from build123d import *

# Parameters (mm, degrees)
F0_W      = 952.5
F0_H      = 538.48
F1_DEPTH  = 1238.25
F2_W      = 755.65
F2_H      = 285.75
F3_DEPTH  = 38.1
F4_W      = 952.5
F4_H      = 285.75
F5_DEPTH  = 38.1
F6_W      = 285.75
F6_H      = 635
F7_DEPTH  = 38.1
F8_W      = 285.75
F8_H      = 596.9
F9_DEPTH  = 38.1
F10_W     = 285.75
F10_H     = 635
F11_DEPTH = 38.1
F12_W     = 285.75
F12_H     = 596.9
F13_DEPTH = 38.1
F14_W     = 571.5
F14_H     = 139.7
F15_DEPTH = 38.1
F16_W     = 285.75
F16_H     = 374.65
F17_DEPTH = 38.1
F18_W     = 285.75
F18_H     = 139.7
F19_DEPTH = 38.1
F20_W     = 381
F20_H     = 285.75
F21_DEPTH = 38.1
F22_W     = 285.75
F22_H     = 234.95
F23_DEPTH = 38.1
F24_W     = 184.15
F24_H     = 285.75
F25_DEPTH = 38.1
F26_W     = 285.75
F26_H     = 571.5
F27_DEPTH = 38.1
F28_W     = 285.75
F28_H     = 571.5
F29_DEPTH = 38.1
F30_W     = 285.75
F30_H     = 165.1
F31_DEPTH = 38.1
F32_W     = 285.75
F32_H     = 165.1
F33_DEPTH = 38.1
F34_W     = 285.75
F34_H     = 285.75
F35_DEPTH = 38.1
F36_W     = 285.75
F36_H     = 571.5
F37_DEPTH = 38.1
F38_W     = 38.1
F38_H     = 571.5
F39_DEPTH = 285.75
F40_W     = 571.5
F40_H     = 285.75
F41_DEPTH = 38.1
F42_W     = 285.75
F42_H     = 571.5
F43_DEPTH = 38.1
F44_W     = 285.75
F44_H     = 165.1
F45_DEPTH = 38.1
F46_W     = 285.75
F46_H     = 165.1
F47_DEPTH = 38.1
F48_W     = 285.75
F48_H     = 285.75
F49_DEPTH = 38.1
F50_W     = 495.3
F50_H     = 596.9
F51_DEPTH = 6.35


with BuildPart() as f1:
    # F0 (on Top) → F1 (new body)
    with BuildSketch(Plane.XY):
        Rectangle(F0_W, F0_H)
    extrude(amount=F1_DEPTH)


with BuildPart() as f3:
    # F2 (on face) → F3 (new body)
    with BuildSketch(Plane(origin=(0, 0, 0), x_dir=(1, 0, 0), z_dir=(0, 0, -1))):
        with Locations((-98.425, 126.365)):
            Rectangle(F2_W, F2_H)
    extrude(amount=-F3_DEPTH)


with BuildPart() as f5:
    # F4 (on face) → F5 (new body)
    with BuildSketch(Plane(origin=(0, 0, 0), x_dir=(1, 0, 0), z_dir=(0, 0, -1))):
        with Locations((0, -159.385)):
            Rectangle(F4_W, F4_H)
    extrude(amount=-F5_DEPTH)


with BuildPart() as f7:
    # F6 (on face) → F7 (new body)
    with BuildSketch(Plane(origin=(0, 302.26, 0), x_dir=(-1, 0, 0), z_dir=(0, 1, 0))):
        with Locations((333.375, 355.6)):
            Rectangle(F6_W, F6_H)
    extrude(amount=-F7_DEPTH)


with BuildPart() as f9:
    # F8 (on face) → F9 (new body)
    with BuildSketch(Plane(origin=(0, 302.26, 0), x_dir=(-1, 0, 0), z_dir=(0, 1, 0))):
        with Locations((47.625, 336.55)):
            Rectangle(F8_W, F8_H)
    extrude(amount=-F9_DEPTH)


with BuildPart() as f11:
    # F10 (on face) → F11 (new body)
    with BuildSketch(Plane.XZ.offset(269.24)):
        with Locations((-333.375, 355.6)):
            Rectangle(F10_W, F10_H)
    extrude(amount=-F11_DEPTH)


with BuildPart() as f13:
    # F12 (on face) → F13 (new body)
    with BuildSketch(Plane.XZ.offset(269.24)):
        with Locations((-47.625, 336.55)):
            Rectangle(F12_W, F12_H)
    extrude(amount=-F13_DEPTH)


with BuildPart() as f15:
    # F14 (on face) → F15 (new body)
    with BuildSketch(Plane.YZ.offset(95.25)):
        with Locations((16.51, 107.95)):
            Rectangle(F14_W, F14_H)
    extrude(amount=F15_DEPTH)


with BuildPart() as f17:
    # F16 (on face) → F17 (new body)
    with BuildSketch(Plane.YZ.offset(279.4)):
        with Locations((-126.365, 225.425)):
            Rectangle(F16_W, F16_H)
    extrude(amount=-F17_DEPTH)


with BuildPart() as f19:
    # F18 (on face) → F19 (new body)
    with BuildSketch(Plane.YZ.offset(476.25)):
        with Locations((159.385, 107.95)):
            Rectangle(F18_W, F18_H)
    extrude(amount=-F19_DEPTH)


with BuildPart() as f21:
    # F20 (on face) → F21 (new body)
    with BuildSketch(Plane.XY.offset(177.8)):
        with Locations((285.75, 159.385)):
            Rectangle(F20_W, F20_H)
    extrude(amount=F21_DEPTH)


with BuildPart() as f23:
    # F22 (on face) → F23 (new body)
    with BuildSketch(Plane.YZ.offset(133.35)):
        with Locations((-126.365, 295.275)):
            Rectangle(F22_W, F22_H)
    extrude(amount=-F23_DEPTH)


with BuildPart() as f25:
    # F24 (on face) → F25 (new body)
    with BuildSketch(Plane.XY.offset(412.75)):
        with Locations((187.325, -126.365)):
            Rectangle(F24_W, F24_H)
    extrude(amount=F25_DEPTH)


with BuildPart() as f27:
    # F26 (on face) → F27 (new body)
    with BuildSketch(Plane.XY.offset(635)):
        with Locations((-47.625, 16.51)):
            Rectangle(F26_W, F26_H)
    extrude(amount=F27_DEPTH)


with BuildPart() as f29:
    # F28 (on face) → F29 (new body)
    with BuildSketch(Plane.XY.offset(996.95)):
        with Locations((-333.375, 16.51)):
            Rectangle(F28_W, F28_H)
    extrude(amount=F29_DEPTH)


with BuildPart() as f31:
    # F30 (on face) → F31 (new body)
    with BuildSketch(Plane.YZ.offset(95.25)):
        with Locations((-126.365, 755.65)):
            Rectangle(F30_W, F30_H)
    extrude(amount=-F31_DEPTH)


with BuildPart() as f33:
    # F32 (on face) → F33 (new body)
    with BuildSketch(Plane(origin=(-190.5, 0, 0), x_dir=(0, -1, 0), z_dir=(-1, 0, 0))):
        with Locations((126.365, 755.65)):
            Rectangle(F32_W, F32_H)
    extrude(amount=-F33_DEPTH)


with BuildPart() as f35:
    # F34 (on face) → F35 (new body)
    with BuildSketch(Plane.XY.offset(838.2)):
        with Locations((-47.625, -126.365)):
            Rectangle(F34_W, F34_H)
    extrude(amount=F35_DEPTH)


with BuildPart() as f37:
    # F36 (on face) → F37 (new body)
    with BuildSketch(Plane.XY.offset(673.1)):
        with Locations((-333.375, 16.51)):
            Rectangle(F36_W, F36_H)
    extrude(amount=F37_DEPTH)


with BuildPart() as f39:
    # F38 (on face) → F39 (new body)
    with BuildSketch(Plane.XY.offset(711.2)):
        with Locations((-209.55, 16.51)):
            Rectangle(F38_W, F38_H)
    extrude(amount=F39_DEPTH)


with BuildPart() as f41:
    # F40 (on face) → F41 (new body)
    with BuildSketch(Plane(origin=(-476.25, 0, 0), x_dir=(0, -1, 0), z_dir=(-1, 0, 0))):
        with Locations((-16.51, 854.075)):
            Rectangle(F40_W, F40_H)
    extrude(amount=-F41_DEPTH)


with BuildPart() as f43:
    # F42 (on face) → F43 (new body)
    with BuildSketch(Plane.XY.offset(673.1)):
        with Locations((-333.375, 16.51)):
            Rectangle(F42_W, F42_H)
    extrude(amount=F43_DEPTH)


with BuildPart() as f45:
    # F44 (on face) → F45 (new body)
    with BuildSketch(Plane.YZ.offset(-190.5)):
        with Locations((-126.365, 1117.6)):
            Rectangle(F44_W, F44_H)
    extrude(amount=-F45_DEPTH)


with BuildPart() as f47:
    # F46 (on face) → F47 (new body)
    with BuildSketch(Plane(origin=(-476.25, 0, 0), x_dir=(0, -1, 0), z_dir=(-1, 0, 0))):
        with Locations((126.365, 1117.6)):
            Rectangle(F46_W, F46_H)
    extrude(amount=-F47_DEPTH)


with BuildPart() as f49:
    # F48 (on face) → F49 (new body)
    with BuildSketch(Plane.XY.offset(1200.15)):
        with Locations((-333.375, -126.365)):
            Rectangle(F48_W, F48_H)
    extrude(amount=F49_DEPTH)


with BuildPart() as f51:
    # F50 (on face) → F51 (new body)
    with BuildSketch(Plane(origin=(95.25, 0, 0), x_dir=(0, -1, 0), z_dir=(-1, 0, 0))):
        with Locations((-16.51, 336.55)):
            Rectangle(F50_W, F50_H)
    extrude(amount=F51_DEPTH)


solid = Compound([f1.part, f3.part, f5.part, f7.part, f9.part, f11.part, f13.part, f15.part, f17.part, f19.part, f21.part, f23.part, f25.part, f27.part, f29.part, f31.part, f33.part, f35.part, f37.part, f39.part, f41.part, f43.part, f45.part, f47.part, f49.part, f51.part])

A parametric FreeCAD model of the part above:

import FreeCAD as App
import Part
import Sketcher

V = App.Vector
Q = App.Units.Quantity


def add_polygon(sketch, points):
    """Adds a closed chain of lines whose ends are joined by coincident constraints."""
    first, n = sketch.GeometryCount, len(points)
    for a, b in zip(points, points[1:] + points[:1]):
        sketch.addGeometry(Part.LineSegment(App.Vector(*a, 0), App.Vector(*b, 0)), False)
    for i in range(n):
        sketch.addConstraint(Sketcher.Constraint("Coincident", first + i, 2, first + (i + 1) % n, 1))

doc = App.newDocument("Part")
params = doc.addObject("Spreadsheet::Sheet", "Params")
for row, (alias, value) in enumerate([
    ("sketch1_width", "37.5 in"),
    ("sketch1_height", "21.2 in"),
    ("pad1_length", "48.75 in"),
    ("sketch2_width", "29.75 in"),
    ("sketch2_height", "11.25 in"),
    ("pad2_length", "1.5 in"),
    ("sketch3_width", "37.5 in"),
    ("sketch3_height", "11.25 in"),
    ("pad3_length", "1.5 in"),
    ("sketch4_height", "25 in"),
    ("sketch4_width", "11.25 in"),
    ("pad4_length", "1.5 in"),
    ("sketch5_height", "23.5 in"),
    ("sketch5_width", "11.25 in"),
    ("pad5_length", "1.5 in"),
    ("sketch6_height", "25 in"),
    ("sketch6_width", "11.25 in"),
    ("pad6_length", "1.5 in"),
    ("sketch7_height", "23.5 in"),
    ("sketch7_width", "11.25 in"),
    ("pad7_length", "1.5 in"),
    ("sketch8_width", "22.5 in"),
    ("sketch8_height", "5.5 in"),
    ("pad8_length", "1.5 in"),
    ("sketch9_width", "11.25 in"),
    ("sketch9_height", "14.75 in"),
    ("pad9_length", "1.5 in"),
    ("sketch10_height", "5.5 in"),
    ("sketch10_width", "11.25 in"),
    ("pad10_length", "1.5 in"),
    ("sketch11_width", "15 in"),
    ("sketch11_height", "11.25 in"),
    ("pad11_length", "1.5 in"),
    ("sketch12_width", "11.25 in"),
    ("sketch12_height", "9.25 in"),
    ("pad12_length", "1.5 in"),
    ("sketch13_width", "7.25 in"),
    ("sketch13_height", "11.25 in"),
    ("pad13_length", "1.5 in"),
    ("sketch14_height", "22.5 in"),
    ("sketch14_width", "11.25 in"),
    ("pad14_length", "1.5 in"),
    ("sketch15_height", "22.5 in"),
    ("sketch15_width", "11.25 in"),
    ("pad15_length", "1.5 in"),
    ("sketch16_height", "6.5 in"),
    ("sketch16_width", "11.25 in"),
    ("pad16_length", "1.5 in"),
    ("sketch17_height", "6.5 in"),
    ("sketch17_width", "11.25 in"),
    ("pad17_length", "1.5 in"),
    ("sketch18_width", "11.25 in"),
    ("pad18_length", "1.5 in"),
    ("sketch19_height", "22.5 in"),
    ("sketch19_width", "11.25 in"),
    ("pad19_length", "1.5 in"),
    ("sketch20_width", "1.5 in"),
    ("sketch20_height", "22.5 in"),
    ("pad20_length", "11.25 in"),
    ("sketch21_width", "22.5 in"),
    ("sketch21_height", "11.25 in"),
    ("pad21_length", "1.5 in"),
    ("sketch22_height", "22.5 in"),
    ("sketch22_width", "11.25 in"),
    ("pad22_length", "1.5 in"),
    ("sketch23_height", "6.5 in"),
    ("sketch23_width", "11.25 in"),
    ("pad23_length", "1.5 in"),
    ("sketch24_height", "6.5 in"),
    ("sketch24_width", "11.25 in"),
    ("pad24_length", "1.5 in"),
    ("sketch25_width", "11.25 in"),
    ("pad25_length", "1.5 in"),
    ("sketch26_width", "19.5 in"),
    ("sketch26_height", "23.5 in"),
    ("pad26_length", "0.25 in"),
], start=1):
    params.set(f"A{row}", alias)
    params.set(f"B{row}", "=" + value)
    params.setAlias(f"B{row}", alias)

body = doc.addObject("PartDesign::Body", "Body")

# Sketch on XY plane
sketch1 = body.newObject("Sketcher::SketchObject", "Sketch")
sketch1.AttachmentSupport = (doc.getObject("XY_Plane"), [""])
sketch1.MapMode = "FlatFace"
add_polygon(sketch1, [(-476, 269), (-476, -269), (476, -269), (476, 269)])  # lines 0-3
sketch1.addConstraint([
    Sketcher.Constraint("Vertical", 0),
    Sketcher.Constraint("Horizontal", 1),
    Sketcher.Constraint("Vertical", 2),
    Sketcher.Constraint("Horizontal", 3),
    Sketcher.Constraint("Symmetric", 0, 2, 2, 2, -1, 1),
    Sketcher.Constraint("DistanceX", 1, 1, 1, 2, Q("37.5 in")),
    Sketcher.Constraint("DistanceY", 0, 2, 0, 1, Q("21.2 in")),
])
sketch1.setExpression("Constraints[9]", "Params.sketch1_width")
sketch1.setExpression("Constraints[10]", "Params.sketch1_height")
pad1 = body.newObject("PartDesign::Pad", "Pad")
pad1.Profile = sketch1
pad1.setExpression("Length", "Params.pad1_length")
body2 = doc.addObject("PartDesign::Body", "Body001")

# Sketch on XY plane
sketch2 = body2.newObject("Sketcher::SketchObject", "Sketch001")
sketch2.AttachmentSupport = (doc.getObject("XY_Plane001"), [""])
sketch2.MapMode = "FlatFace"
add_polygon(sketch2, [(-476, -269), (-476, 17), (279, 17), (279, -269)])  # lines 0-3
sketch2.addConstraint([
    Sketcher.Constraint("Vertical", 0),
    Sketcher.Constraint("Horizontal", 1),
    Sketcher.Constraint("Vertical", 2),
    Sketcher.Constraint("Horizontal", 3),
    Sketcher.Constraint("DistanceX", -1, 1, 1, 2, Q("11 in")),
    Sketcher.Constraint("DistanceX", 1, 1, 1, 2, Q("29.75 in")),
    Sketcher.Constraint("DistanceY", 0, 1, 0, 2, Q("11.25 in")),
    Sketcher.Constraint("DistanceY", 2, 2, -1, 1, Q("10.6 in")),
])
sketch2.setExpression("Constraints[9]", "Params.sketch2_width")
sketch2.setExpression("Constraints[10]", "Params.sketch2_height")
pad2 = body2.newObject("PartDesign::Pad", "Pad001")
pad2.Profile = sketch2
pad2.setExpression("Length", "Params.pad2_length")
body3 = doc.addObject("PartDesign::Body", "Body002")

# Sketch on XY plane
sketch3 = body3.newObject("Sketcher::SketchObject", "Sketch002")
sketch3.AttachmentSupport = (doc.getObject("XY_Plane002"), [""])
sketch3.MapMode = "FlatFace"
add_polygon(sketch3, [(-476, 17), (-476, 302), (476, 302), (476, 17)])  # lines 0-3
sketch3.addConstraint([
    Sketcher.Constraint("Vertical", 0),
    Sketcher.Constraint("Horizontal", 1),
    Sketcher.Constraint("Vertical", 2),
    Sketcher.Constraint("Horizontal", 3),
    Sketcher.Constraint("DistanceX", 1, 1, 1, 2, Q("37.5 in")),
    Sketcher.Constraint("DistanceY", 0, 1, 0, 2, Q("11.25 in")),
    Sketcher.Constraint("DistanceY", -1, 1, 0, 2, Q("11.9 in")),
    Sketcher.Constraint("DistanceX", 0, 2, -1, 1, Q("18.75 in")),
])
sketch3.setExpression("Constraints[8]", "Params.sketch3_width")
sketch3.setExpression("Constraints[9]", "Params.sketch3_height")
pad3 = body3.newObject("PartDesign::Pad", "Pad002")
pad3.Profile = sketch3
pad3.setExpression("Length", "Params.pad3_length")
body4 = doc.addObject("PartDesign::Body", "Body003")

# Sketch on XZ plane
sketch4 = body4.newObject("Sketcher::SketchObject", "Sketch003")
sketch4.AttachmentSupport = (doc.getObject("XZ_Plane003"), [""])
sketch4.MapMode = "FlatFace"
sketch4.AttachmentOffset = App.Placement(V(0, 0, -11.9 * 25.4), App.Rotation())
add_polygon(sketch4, [(-190, 673), (-190, 38), (-476, 38), (-476, 673)])  # lines 0-3
sketch4.addConstraint([
    Sketcher.Constraint("Vertical", 0),
    Sketcher.Constraint("Horizontal", 1),
    Sketcher.Constraint("Vertical", 2),
    Sketcher.Constraint("Horizontal", 3),
    Sketcher.Constraint("DistanceY", 0, 2, 0, 1, Q("25 in")),
    Sketcher.Constraint("DistanceX", 1, 2, 1, 1, Q("11.25 in")),
    Sketcher.Constraint("DistanceX", 0, 2, -1, 1, Q("7.5 in")),
    Sketcher.Constraint("DistanceY", -1, 1, 0, 2, Q("1.5 in")),
])
sketch4.setExpression("Constraints[8]", "Params.sketch4_height")
sketch4.setExpression("Constraints[9]", "Params.sketch4_width")
pad4 = body4.newObject("PartDesign::Pad", "Pad003")
pad4.Profile = sketch4
pad4.setExpression("Length", "Params.pad4_length")
body5 = doc.addObject("PartDesign::Body", "Body004")

# Sketch on XZ plane
sketch5 = body5.newObject("Sketcher::SketchObject", "Sketch004")
sketch5.AttachmentSupport = (doc.getObject("XZ_Plane004"), [""])
sketch5.MapMode = "FlatFace"
sketch5.AttachmentOffset = App.Placement(V(0, 0, -11.9 * 25.4), App.Rotation())
add_polygon(sketch5, [(95, 635), (95, 38), (-190, 38), (-190, 635)])  # lines 0-3
sketch5.addConstraint([
    Sketcher.Constraint("Vertical", 0),
    Sketcher.Constraint("Horizontal", 1),
    Sketcher.Constraint("Vertical", 2),
    Sketcher.Constraint("Horizontal", 3),
    Sketcher.Constraint("DistanceY", 0, 2, 0, 1, Q("23.5 in")),
    Sketcher.Constraint("DistanceY", -1, 1, 2, 2, Q("25 in")),
    Sketcher.Constraint("DistanceX", 1, 2, 1, 1, Q("11.25 in")),
    Sketcher.Constraint("DistanceX", 1, 2, -1, 1, Q("7.5 in")),
])
sketch5.setExpression("Constraints[8]", "Params.sketch5_height")
sketch5.setExpression("Constraints[10]", "Params.sketch5_width")
pad5 = body5.newObject("PartDesign::Pad", "Pad004")
pad5.Profile = sketch5
pad5.setExpression("Length", "Params.pad5_length")
body6 = doc.addObject("PartDesign::Body", "Body005")

# Sketch on XZ plane
sketch6 = body6.newObject("Sketcher::SketchObject", "Sketch005")
sketch6.AttachmentSupport = (doc.getObject("XZ_Plane005"), [""])
sketch6.MapMode = "FlatFace"
sketch6.AttachmentOffset = App.Placement(V(0, 0, 10.6 * 25.4), App.Rotation())
add_polygon(sketch6, [(-476, 673), (-476, 38), (-190, 38), (-190, 673)])  # lines 0-3
sketch6.addConstraint([
    Sketcher.Constraint("Vertical", 0),
    Sketcher.Constraint("Horizontal", 1),
    Sketcher.Constraint("Vertical", 2),
    Sketcher.Constraint("Horizontal", 3),
    Sketcher.Constraint("DistanceY", 0, 2, 0, 1, Q("25 in")),
    Sketcher.Constraint("DistanceX", 1, 1, 1, 2, Q("11.25 in")),
    Sketcher.Constraint("DistanceY", -1, 1, 0, 2, Q("1.5 in")),
    Sketcher.Constraint("DistanceX", 1, 2, -1, 1, Q("7.5 in")),
])
sketch6.setExpression("Constraints[8]", "Params.sketch6_height")
sketch6.setExpression("Constraints[9]", "Params.sketch6_width")
pad6 = body6.newObject("PartDesign::Pad", "Pad005")
pad6.Profile = sketch6
pad6.setExpression("Length", "Params.pad6_length")
pad6.Reversed = True
body7 = doc.addObject("PartDesign::Body", "Body006")

# Sketch on XZ plane
sketch7 = body7.newObject("Sketcher::SketchObject", "Sketch006")
sketch7.AttachmentSupport = (doc.getObject("XZ_Plane006"), [""])
sketch7.MapMode = "FlatFace"
sketch7.AttachmentOffset = App.Placement(V(0, 0, 10.6 * 25.4), App.Rotation())
add_polygon(sketch7, [(-190, 635), (-190, 38), (95, 38), (95, 635)])  # lines 0-3
sketch7.addConstraint([
    Sketcher.Constraint("Vertical", 0),
    Sketcher.Constraint("Horizontal", 1),
    Sketcher.Constraint("Vertical", 2),
    Sketcher.Constraint("Horizontal", 3),
    Sketcher.Constraint("DistanceY", 0, 2, 0, 1, Q("23.5 in")),
    Sketcher.Constraint("DistanceY", -1, 1, 2, 2, Q("25 in")),
    Sketcher.Constraint("DistanceX", 1, 1, 1, 2, Q("11.25 in")),
    Sketcher.Constraint("DistanceX", 0, 2, -1, 1, Q("7.5 in")),
])
sketch7.setExpression("Constraints[8]", "Params.sketch7_height")
sketch7.setExpression("Constraints[10]", "Params.sketch7_width")
pad7 = body7.newObject("PartDesign::Pad", "Pad006")
pad7.Profile = sketch7
pad7.setExpression("Length", "Params.pad7_length")
pad7.Reversed = True
body8 = doc.addObject("PartDesign::Body", "Body007")

# Sketch on YZ plane
sketch8 = body8.newObject("Sketcher::SketchObject", "Sketch007")
sketch8.AttachmentSupport = (doc.getObject("YZ_Plane007"), [""])
sketch8.MapMode = "FlatFace"
sketch8.AttachmentOffset = App.Placement(V(0, 0, 3.75 * 25.4), App.Rotation())
add_polygon(sketch8, [(-269, 178), (-269, 38), (302, 38), (302, 178)])  # lines 0-3
sketch8.addConstraint([
    Sketcher.Constraint("Vertical", 0),
    Sketcher.Constraint("Horizontal", 1),
    Sketcher.Constraint("Vertical", 2),
    Sketcher.Constraint("Horizontal", 3),
    Sketcher.Constraint("DistanceX", 1, 1, 1, 2, Q("22.5 in")),
    Sketcher.Constraint("DistanceY", 0, 2, 0, 1, Q("5.5 in")),
    Sketcher.Constraint("DistanceY", -1, 1, 2, 2, Q("7 in")),
    Sketcher.Constraint("DistanceX", 0, 2, -1, 1, Q("10.6 in")),
])
sketch8.setExpression("Constraints[8]", "Params.sketch8_width")
sketch8.setExpression("Constraints[9]", "Params.sketch8_height")
pad8 = body8.newObject("PartDesign::Pad", "Pad007")
pad8.Profile = sketch8
pad8.setExpression("Length", "Params.pad8_length")
body9 = doc.addObject("PartDesign::Body", "Body008")

# Sketch on YZ plane
sketch9 = body9.newObject("Sketcher::SketchObject", "Sketch008")
sketch9.AttachmentSupport = (doc.getObject("YZ_Plane008"), [""])
sketch9.MapMode = "FlatFace"
sketch9.AttachmentOffset = App.Placement(V(0, 0, 11 * 25.4), App.Rotation())
add_polygon(sketch9, [(-269, 413), (-269, 38), (17, 38), (17, 413)])  # lines 0-3
sketch9.addConstraint([
    Sketcher.Constraint("Vertical", 0),
    Sketcher.Constraint("Horizontal", 1),
    Sketcher.Constraint("Vertical", 2),
    Sketcher.Constraint("Horizontal", 3),
    Sketcher.Constraint("DistanceX", 1, 1, 1, 2, Q("11.25 in")),
    Sketcher.Constraint("DistanceY", 0, 2, 0, 1, Q("14.75 in")),
    Sketcher.Constraint("DistanceX", 0, 2, -1, 1, Q("10.6 in")),
    Sketcher.Constraint("DistanceY", -1, 1, 0, 2, Q("1.5 in")),
])
sketch9.setExpression("Constraints[8]", "Params.sketch9_width")
sketch9.setExpression("Constraints[9]", "Params.sketch9_height")
pad9 = body9.newObject("PartDesign::Pad", "Pad008")
pad9.Profile = sketch9
pad9.setExpression("Length", "Params.pad9_length")
pad9.Reversed = True
body10 = doc.addObject("PartDesign::Body", "Body009")

# Sketch on YZ plane
sketch10 = body10.newObject("Sketcher::SketchObject", "Sketch009")
sketch10.AttachmentSupport = (doc.getObject("YZ_Plane009"), [""])
sketch10.MapMode = "FlatFace"
sketch10.AttachmentOffset = App.Placement(V(0, 0, 18.75 * 25.4), App.Rotation())
add_polygon(sketch10, [(17, 178), (17, 38), (302, 38), (302, 178)])  # lines 0-3
sketch10.addConstraint([
    Sketcher.Constraint("Vertical", 0),
    Sketcher.Constraint("Horizontal", 1),
    Sketcher.Constraint("Vertical", 2),
    Sketcher.Constraint("Horizontal", 3),
    Sketcher.Constraint("DistanceY", 0, 2, 0, 1, Q("5.5 in")),
    Sketcher.Constraint("DistanceY", -1, 1, 2, 2, Q("7 in")),
    Sketcher.Constraint("DistanceX", 1, 1, 1, 2, Q("11.25 in")),
    Sketcher.Constraint("DistanceX", -1, 1, 1, 2, Q("11.9 in")),
])
sketch10.setExpression("Constraints[8]", "Params.sketch10_height")
sketch10.setExpression("Constraints[10]", "Params.sketch10_width")
pad10 = body10.newObject("PartDesign::Pad", "Pad009")
pad10.Profile = sketch10
pad10.setExpression("Length", "Params.pad10_length")
pad10.Reversed = True
body11 = doc.addObject("PartDesign::Body", "Body010")

# Sketch on XY plane
sketch11 = body11.newObject("Sketcher::SketchObject", "Sketch010")
sketch11.AttachmentSupport = (doc.getObject("XY_Plane010"), [""])
sketch11.MapMode = "FlatFace"
sketch11.AttachmentOffset = App.Placement(V(0, 0, 7 * 25.4), App.Rotation())
add_polygon(sketch11, [(95, 302), (95, 17), (476, 17), (476, 302)])  # lines 0-3
sketch11.addConstraint([
    Sketcher.Constraint("Vertical", 0),
    Sketcher.Constraint("Horizontal", 1),
    Sketcher.Constraint("Vertical", 2),
    Sketcher.Constraint("Horizontal", 3),
    Sketcher.Constraint("DistanceX", 1, 1, 1, 2, Q("15 in")),
    Sketcher.Constraint("DistanceY", 0, 2, 0, 1, Q("11.25 in")),
    Sketcher.Constraint("DistanceY", -1, 1, 2, 2, Q("11.9 in")),
    Sketcher.Constraint("DistanceX", -1, 1, 0, 2, Q("3.75 in")),
])
sketch11.setExpression("Constraints[8]", "Params.sketch11_width")
sketch11.setExpression("Constraints[9]", "Params.sketch11_height")
pad11 = body11.newObject("PartDesign::Pad", "Pad010")
pad11.Profile = sketch11
pad11.setExpression("Length", "Params.pad11_length")
body12 = doc.addObject("PartDesign::Body", "Body011")

# Sketch on YZ plane
sketch12 = body12.newObject("Sketcher::SketchObject", "Sketch011")
sketch12.AttachmentSupport = (doc.getObject("YZ_Plane011"), [""])
sketch12.MapMode = "FlatFace"
sketch12.AttachmentOffset = App.Placement(V(0, 0, 5.25 * 25.4), App.Rotation())
add_polygon(sketch12, [(-269, 413), (-269, 178), (17, 178), (17, 413)])  # lines 0-3
sketch12.addConstraint([
    Sketcher.Constraint("Vertical", 0),
    Sketcher.Constraint("Horizontal", 1),
    Sketcher.Constraint("Vertical", 2),
    Sketcher.Constraint("Horizontal", 3),
    Sketcher.Constraint("DistanceY", -1, 1, 0, 2, Q("7 in")),
    Sketcher.Constraint("DistanceX", 1, 1, 1, 2, Q("11.25 in")),
    Sketcher.Constraint("DistanceY", 0, 2, 0, 1, Q("9.25 in")),
    Sketcher.Constraint("DistanceX", 0, 2, -1, 1, Q("10.6 in")),
])
sketch12.setExpression("Constraints[9]", "Params.sketch12_width")
sketch12.setExpression("Constraints[10]", "Params.sketch12_height")
pad12 = body12.newObject("PartDesign::Pad", "Pad011")
pad12.Profile = sketch12
pad12.setExpression("Length", "Params.pad12_length")
pad12.Reversed = True
body13 = doc.addObject("PartDesign::Body", "Body012")

# Sketch on XY plane
sketch13 = body13.newObject("Sketcher::SketchObject", "Sketch012")
sketch13.AttachmentSupport = (doc.getObject("XY_Plane012"), [""])
sketch13.MapMode = "FlatFace"
sketch13.AttachmentOffset = App.Placement(V(0, 0, 16.25 * 25.4), App.Rotation())
add_polygon(sketch13, [(95, 17), (95, -269), (279, -269), (279, 17)])  # lines 0-3
sketch13.addConstraint([
    Sketcher.Constraint("Vertical", 0),
    Sketcher.Constraint("Horizontal", 1),
    Sketcher.Constraint("Vertical", 2),
    Sketcher.Constraint("Horizontal", 3),
    Sketcher.Constraint("DistanceX", -1, 1, 1, 2, Q("11 in")),
    Sketcher.Constraint("DistanceX", 1, 1, 1, 2, Q("7.25 in")),
    Sketcher.Constraint("DistanceY", 0, 2, 0, 1, Q("11.25 in")),
    Sketcher.Constraint("DistanceY", 0, 2, -1, 1, Q("10.6 in")),
])
sketch13.setExpression("Constraints[9]", "Params.sketch13_width")
sketch13.setExpression("Constraints[10]", "Params.sketch13_height")
pad13 = body13.newObject("PartDesign::Pad", "Pad012")
pad13.Profile = sketch13
pad13.setExpression("Length", "Params.pad13_length")
body14 = doc.addObject("PartDesign::Body", "Body013")

# Sketch on XY plane
sketch14 = body14.newObject("Sketcher::SketchObject", "Sketch013")
sketch14.AttachmentSupport = (doc.getObject("XY_Plane013"), [""])
sketch14.MapMode = "FlatFace"
sketch14.AttachmentOffset = App.Placement(V(0, 0, 25 * 25.4), App.Rotation())
add_polygon(sketch14, [(-190, 302), (-190, -269), (95, -269), (95, 302)])  # lines 0-3
sketch14.addConstraint([
    Sketcher.Constraint("Vertical", 0),
    Sketcher.Constraint("Horizontal", 1),
    Sketcher.Constraint("Vertical", 2),
    Sketcher.Constraint("Horizontal", 3),
    Sketcher.Constraint("DistanceY", 0, 2, 0, 1, Q("22.5 in")),
    Sketcher.Constraint("DistanceX", 1, 1, 1, 2, Q("11.25 in")),
    Sketcher.Constraint("DistanceX", 0, 2, -1, 1, Q("7.5 in")),
    Sketcher.Constraint("DistanceY", 0, 2, -1, 1, Q("10.6 in")),
])
sketch14.setExpression("Constraints[8]", "Params.sketch14_height")
sketch14.setExpression("Constraints[9]", "Params.sketch14_width")
pad14 = body14.newObject("PartDesign::Pad", "Pad013")
pad14.Profile = sketch14
pad14.setExpression("Length", "Params.pad14_length")
body15 = doc.addObject("PartDesign::Body", "Body014")

# Sketch on XY plane
sketch15 = body15.newObject("Sketcher::SketchObject", "Sketch014")
sketch15.AttachmentSupport = (doc.getObject("XY_Plane014"), [""])
sketch15.MapMode = "FlatFace"
sketch15.AttachmentOffset = App.Placement(V(0, 0, 39.25 * 25.4), App.Rotation())
add_polygon(sketch15, [(-476, 302), (-476, -269), (-190, -269), (-190, 302)])  # lines 0-3
sketch15.addConstraint([
    Sketcher.Constraint("Vertical", 0),
    Sketcher.Constraint("Horizontal", 1),
    Sketcher.Constraint("Vertical", 2),
    Sketcher.Constraint("Horizontal", 3),
    Sketcher.Constraint("DistanceY", 0, 2, 0, 1, Q("22.5 in")),
    Sketcher.Constraint("DistanceX", 1, 1, 1, 2, Q("11.25 in")),
    Sketcher.Constraint("DistanceY", 0, 2, -1, 1, Q("10.6 in")),
    Sketcher.Constraint("DistanceX", 1, 2, -1, 1, Q("7.5 in")),
])
sketch15.setExpression("Constraints[8]", "Params.sketch15_height")
sketch15.setExpression("Constraints[9]", "Params.sketch15_width")
pad15 = body15.newObject("PartDesign::Pad", "Pad014")
pad15.Profile = sketch15
pad15.setExpression("Length", "Params.pad15_length")
body16 = doc.addObject("PartDesign::Body", "Body015")

# Sketch on YZ plane
sketch16 = body16.newObject("Sketcher::SketchObject", "Sketch015")
sketch16.AttachmentSupport = (doc.getObject("YZ_Plane015"), [""])
sketch16.MapMode = "FlatFace"
sketch16.AttachmentOffset = App.Placement(V(0, 0, 3.75 * 25.4), App.Rotation())
add_polygon(sketch16, [(-269, 838), (-269, 673), (17, 673), (17, 838)])  # lines 0-3
sketch16.addConstraint([
    Sketcher.Constraint("Vertical", 0),
    Sketcher.Constraint("Horizontal", 1),
    Sketcher.Constraint("Vertical", 2),
    Sketcher.Constraint("Horizontal", 3),
    Sketcher.Constraint("DistanceY", 0, 2, 0, 1, Q("6.5 in")),
    Sketcher.Constraint("DistanceY", -1, 1, 2, 2, Q("33 in")),
    Sketcher.Constraint("DistanceX", 1, 1, 1, 2, Q("11.25 in")),
    Sketcher.Constraint("DistanceX", 0, 2, -1, 1, Q("10.6 in")),
])
sketch16.setExpression("Constraints[8]", "Params.sketch16_height")
sketch16.setExpression("Constraints[10]", "Params.sketch16_width")
pad16 = body16.newObject("PartDesign::Pad", "Pad015")
pad16.Profile = sketch16
pad16.setExpression("Length", "Params.pad16_length")
pad16.Reversed = True
body17 = doc.addObject("PartDesign::Body", "Body016")

# Sketch on YZ plane
sketch17 = body17.newObject("Sketcher::SketchObject", "Sketch016")
sketch17.AttachmentSupport = (doc.getObject("YZ_Plane016"), [""])
sketch17.MapMode = "FlatFace"
sketch17.AttachmentOffset = App.Placement(V(0, 0, -7.5 * 25.4), App.Rotation())
add_polygon(sketch17, [(17, 838), (17, 673), (-269, 673), (-269, 838)])  # lines 0-3
sketch17.addConstraint([
    Sketcher.Constraint("Vertical", 0),
    Sketcher.Constraint("Horizontal", 1),
    Sketcher.Constraint("Vertical", 2),
    Sketcher.Constraint("Horizontal", 3),
    Sketcher.Constraint("DistanceY", 0, 2, 0, 1, Q("6.5 in")),
    Sketcher.Constraint("DistanceY", -1, 1, 2, 2, Q("33 in")),
    Sketcher.Constraint("DistanceX", 1, 2, 1, 1, Q("11.25 in")),
    Sketcher.Constraint("DistanceX", 1, 2, -1, 1, Q("10.6 in")),
])
sketch17.setExpression("Constraints[8]", "Params.sketch17_height")
sketch17.setExpression("Constraints[10]", "Params.sketch17_width")
pad17 = body17.newObject("PartDesign::Pad", "Pad016")
pad17.Profile = sketch17
pad17.setExpression("Length", "Params.pad17_length")
body18 = doc.addObject("PartDesign::Body", "Body017")

# Sketch on XY plane
sketch18 = body18.newObject("Sketcher::SketchObject", "Sketch017")
sketch18.AttachmentSupport = (doc.getObject("XY_Plane017"), [""])
sketch18.MapMode = "FlatFace"
sketch18.AttachmentOffset = App.Placement(V(0, 0, 33 * 25.4), App.Rotation())
add_polygon(sketch18, [(-190, 17), (-190, -269), (95, -269), (95, 17)])  # lines 0-3
sketch18.addConstraint([
    Sketcher.Constraint("Vertical", 0),
    Sketcher.Constraint("Horizontal", 1),
    Sketcher.Constraint("Vertical", 2),
    Sketcher.Constraint("Horizontal", 3),
    Sketcher.Constraint("Equal", 3, 0),
    Sketcher.Constraint("DistanceX", 1, 1, 1, 2, Q("11.25 in")),
    Sketcher.Constraint("DistanceX", 0, 2, -1, 1, Q("7.5 in")),
    Sketcher.Constraint("DistanceY", 0, 2, -1, 1, Q("10.6 in")),
])
sketch18.setExpression("Constraints[9]", "Params.sketch18_width")
pad18 = body18.newObject("PartDesign::Pad", "Pad017")
pad18.Profile = sketch18
pad18.setExpression("Length", "Params.pad18_length")
body19 = doc.addObject("PartDesign::Body", "Body018")

# Sketch on XY plane
sketch19 = body19.newObject("Sketcher::SketchObject", "Sketch018")
sketch19.AttachmentSupport = (doc.getObject("XY_Plane018"), [""])
sketch19.MapMode = "FlatFace"
sketch19.AttachmentOffset = App.Placement(V(0, 0, 26.5 * 25.4), App.Rotation())
add_polygon(sketch19, [(-476, 302), (-476, -269), (-190, -269), (-190, 302)])  # lines 0-3
sketch19.addConstraint([
    Sketcher.Constraint("Vertical", 0),
    Sketcher.Constraint("Horizontal", 1),
    Sketcher.Constraint("Vertical", 2),
    Sketcher.Constraint("Horizontal", 3),
    Sketcher.Constraint("DistanceY", 0, 2, 0, 1, Q("22.5 in")),
    Sketcher.Constraint("DistanceX", 1, 1, 1, 2, Q("11.25 in")),
    Sketcher.Constraint("DistanceY", 0, 2, -1, 1, Q("10.6 in")),
    Sketcher.Constraint("DistanceX", 1, 2, -1, 1, Q("7.5 in")),
])
sketch19.setExpression("Constraints[8]", "Params.sketch19_height")
sketch19.setExpression("Constraints[9]", "Params.sketch19_width")
pad19 = body19.newObject("PartDesign::Pad", "Pad018")
pad19.Profile = sketch19
pad19.setExpression("Length", "Params.pad19_length")
body20 = doc.addObject("PartDesign::Body", "Body019")

# Sketch on XY plane
sketch20 = body20.newObject("Sketcher::SketchObject", "Sketch019")
sketch20.AttachmentSupport = (doc.getObject("XY_Plane019"), [""])
sketch20.MapMode = "FlatFace"
sketch20.AttachmentOffset = App.Placement(V(0, 0, 28 * 25.4), App.Rotation())
add_polygon(sketch20, [(-229, 302), (-229, -269), (-190, -269), (-190, 302)])  # lines 0-3
sketch20.addConstraint([
    Sketcher.Constraint("Vertical", 0),
    Sketcher.Constraint("Horizontal", 1),
    Sketcher.Constraint("Vertical", 2),
    Sketcher.Constraint("Horizontal", 3),
    Sketcher.Constraint("DistanceX", 1, 1, 1, 2, Q("1.5 in")),
    Sketcher.Constraint("DistanceY", 0, 2, 0, 1, Q("22.5 in")),
    Sketcher.Constraint("DistanceX", 0, 2, -1, 1, Q("9 in")),
    Sketcher.Constraint("DistanceY", 0, 2, -1, 1, Q("10.6 in")),
])
sketch20.setExpression("Constraints[8]", "Params.sketch20_width")
sketch20.setExpression("Constraints[9]", "Params.sketch20_height")
pad20 = body20.newObject("PartDesign::Pad", "Pad019")
pad20.Profile = sketch20
pad20.setExpression("Length", "Params.pad20_length")
body21 = doc.addObject("PartDesign::Body", "Body020")

# Sketch on YZ plane
sketch21 = body21.newObject("Sketcher::SketchObject", "Sketch020")
sketch21.AttachmentSupport = (doc.getObject("YZ_Plane020"), [""])
sketch21.MapMode = "FlatFace"
sketch21.AttachmentOffset = App.Placement(V(0, 0, -18.75 * 25.4), App.Rotation())
add_polygon(sketch21, [(302, 997), (302, 711), (-269, 711), (-269, 997)])  # lines 0-3
sketch21.addConstraint([
    Sketcher.Constraint("Vertical", 0),
    Sketcher.Constraint("Horizontal", 1),
    Sketcher.Constraint("Vertical", 2),
    Sketcher.Constraint("Horizontal", 3),
    Sketcher.Constraint("DistanceX", 1, 2, 1, 1, Q("22.5 in")),
    Sketcher.Constraint("DistanceY", -1, 1, 0, 2, Q("28 in")),
    Sketcher.Constraint("DistanceY", 0, 2, 0, 1, Q("11.25 in")),
    Sketcher.Constraint("DistanceX", -1, 1, 0, 2, Q("11.9 in")),
])
sketch21.setExpression("Constraints[8]", "Params.sketch21_width")
sketch21.setExpression("Constraints[10]", "Params.sketch21_height")
pad21 = body21.newObject("PartDesign::Pad", "Pad020")
pad21.Profile = sketch21
pad21.setExpression("Length", "Params.pad21_length")
body22 = doc.addObject("PartDesign::Body", "Body021")

# Sketch on XY plane
sketch22 = body22.newObject("Sketcher::SketchObject", "Sketch021")
sketch22.AttachmentSupport = (doc.getObject("XY_Plane021"), [""])
sketch22.MapMode = "FlatFace"
sketch22.AttachmentOffset = App.Placement(V(0, 0, 26.5 * 25.4), App.Rotation())
add_polygon(sketch22, [(-476, 302), (-476, -269), (-190, -269), (-190, 302)])  # lines 0-3
sketch22.addConstraint([
    Sketcher.Constraint("Vertical", 0),
    Sketcher.Constraint("Horizontal", 1),
    Sketcher.Constraint("Vertical", 2),
    Sketcher.Constraint("Horizontal", 3),
    Sketcher.Constraint("DistanceY", 0, 2, 0, 1, Q("22.5 in")),
    Sketcher.Constraint("DistanceX", 1, 1, 1, 2, Q("11.25 in")),
    Sketcher.Constraint("DistanceY", 0, 2, -1, 1, Q("10.6 in")),
    Sketcher.Constraint("DistanceX", 1, 2, -1, 1, Q("7.5 in")),
])
sketch22.setExpression("Constraints[8]", "Params.sketch22_height")
sketch22.setExpression("Constraints[9]", "Params.sketch22_width")
pad22 = body22.newObject("PartDesign::Pad", "Pad021")
pad22.Profile = sketch22
pad22.setExpression("Length", "Params.pad22_length")
body23 = doc.addObject("PartDesign::Body", "Body022")

# Sketch on YZ plane
sketch23 = body23.newObject("Sketcher::SketchObject", "Sketch022")
sketch23.AttachmentSupport = (doc.getObject("YZ_Plane022"), [""])
sketch23.MapMode = "FlatFace"
sketch23.AttachmentOffset = App.Placement(V(0, 0, -7.5 * 25.4), App.Rotation())
add_polygon(sketch23, [(-269, 1200), (-269, 1035), (17, 1035), (17, 1200)])  # lines 0-3
sketch23.addConstraint([
    Sketcher.Constraint("Vertical", 0),
    Sketcher.Constraint("Horizontal", 1),
    Sketcher.Constraint("Vertical", 2),
    Sketcher.Constraint("Horizontal", 3),
    Sketcher.Constraint("DistanceY", 0, 2, 0, 1, Q("6.5 in")),
    Sketcher.Constraint("DistanceX", 1, 1, 1, 2, Q("11.25 in")),
    Sketcher.Constraint("DistanceX", 0, 2, -1, 1, Q("10.6 in")),
    Sketcher.Constraint("DistanceY", -1, 1, 0, 2, Q("40.75 in")),
])
sketch23.setExpression("Constraints[8]", "Params.sketch23_height")
sketch23.setExpression("Constraints[9]", "Params.sketch23_width")
pad23 = body23.newObject("PartDesign::Pad", "Pad022")
pad23.Profile = sketch23
pad23.setExpression("Length", "Params.pad23_length")
pad23.Reversed = True
body24 = doc.addObject("PartDesign::Body", "Body023")

# Sketch on YZ plane
sketch24 = body24.newObject("Sketcher::SketchObject", "Sketch023")
sketch24.AttachmentSupport = (doc.getObject("YZ_Plane023"), [""])
sketch24.MapMode = "FlatFace"
sketch24.AttachmentOffset = App.Placement(V(0, 0, -18.75 * 25.4), App.Rotation())
add_polygon(sketch24, [(17, 1200), (17, 1035), (-269, 1035), (-269, 1200)])  # lines 0-3
sketch24.addConstraint([
    Sketcher.Constraint("Vertical", 0),
    Sketcher.Constraint("Horizontal", 1),
    Sketcher.Constraint("Vertical", 2),
    Sketcher.Constraint("Horizontal", 3),
    Sketcher.Constraint("DistanceY", 0, 2, 0, 1, Q("6.5 in")),
    Sketcher.Constraint("DistanceX", 1, 2, 1, 1, Q("11.25 in")),
    Sketcher.Constraint("DistanceX", 1, 2, -1, 1, Q("10.6 in")),
    Sketcher.Constraint("DistanceY", -1, 1, 0, 2, Q("40.75 in")),
])
sketch24.setExpression("Constraints[8]", "Params.sketch24_height")
sketch24.setExpression("Constraints[9]", "Params.sketch24_width")
pad24 = body24.newObject("PartDesign::Pad", "Pad023")
pad24.Profile = sketch24
pad24.setExpression("Length", "Params.pad24_length")
body25 = doc.addObject("PartDesign::Body", "Body024")

# Sketch on XY plane
sketch25 = body25.newObject("Sketcher::SketchObject", "Sketch024")
sketch25.AttachmentSupport = (doc.getObject("XY_Plane024"), [""])
sketch25.MapMode = "FlatFace"
sketch25.AttachmentOffset = App.Placement(V(0, 0, 47.25 * 25.4), App.Rotation())
add_polygon(sketch25, [(-476, 17), (-476, -269), (-190, -269), (-190, 17)])  # lines 0-3
sketch25.addConstraint([
    Sketcher.Constraint("Vertical", 0),
    Sketcher.Constraint("Horizontal", 1),
    Sketcher.Constraint("Vertical", 2),
    Sketcher.Constraint("Horizontal", 3),
    Sketcher.Constraint("Equal", 3, 0),
    Sketcher.Constraint("DistanceX", 1, 1, 1, 2, Q("11.25 in")),
    Sketcher.Constraint("DistanceY", 0, 2, -1, 1, Q("10.6 in")),
    Sketcher.Constraint("DistanceX", 1, 2, -1, 1, Q("7.5 in")),
])
sketch25.setExpression("Constraints[9]", "Params.sketch25_width")
pad25 = body25.newObject("PartDesign::Pad", "Pad024")
pad25.Profile = sketch25
pad25.setExpression("Length", "Params.pad25_length")
body26 = doc.addObject("PartDesign::Body", "Body025")

# Sketch on YZ plane
sketch26 = body26.newObject("Sketcher::SketchObject", "Sketch025")
sketch26.AttachmentSupport = (doc.getObject("YZ_Plane025"), [""])
sketch26.MapMode = "FlatFace"
sketch26.AttachmentOffset = App.Placement(V(0, 0, 3.75 * 25.4), App.Rotation())
add_polygon(sketch26, [(264, 635), (264, 38), (-231, 38), (-231, 635)])  # lines 0-3
sketch26.addConstraint([
    Sketcher.Constraint("Vertical", 0),
    Sketcher.Constraint("Horizontal", 1),
    Sketcher.Constraint("Vertical", 2),
    Sketcher.Constraint("Horizontal", 3),
    Sketcher.Constraint("DistanceX", 1, 2, 1, 1, Q("19.5 in")),
    Sketcher.Constraint("DistanceY", 0, 2, 0, 1, Q("23.5 in")),
    Sketcher.Constraint("DistanceY", -1, 1, 2, 2, Q("25 in")),
    Sketcher.Constraint("DistanceX", -1, 1, 0, 2, Q("10.4 in")),
])
sketch26.setExpression("Constraints[8]", "Params.sketch26_width")
sketch26.setExpression("Constraints[9]", "Params.sketch26_height")
pad26 = body26.newObject("PartDesign::Pad", "Pad025")
pad26.Profile = sketch26
pad26.setExpression("Length", "Params.pad26_length")
pad26.Reversed = True

doc.recompute()
